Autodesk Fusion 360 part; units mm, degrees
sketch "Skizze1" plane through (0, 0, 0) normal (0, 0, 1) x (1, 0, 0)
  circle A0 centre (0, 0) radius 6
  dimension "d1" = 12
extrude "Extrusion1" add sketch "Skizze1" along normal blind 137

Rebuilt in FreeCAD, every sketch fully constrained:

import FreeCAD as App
import Part
import Sketcher
from FreeCAD import Vector

doc = App.newDocument("Part")
body = doc.addObject("PartDesign::Body", "Body")

# Sketch on XY plane
sketch1 = body.newObject("Sketcher::SketchObject", "Sketch")
sketch1.AttachmentSupport = (doc.getObject("XY_Plane"), [""])
sketch1.MapMode = "FlatFace"
sketch1.addGeometry(Part.Circle(Vector(0, 0, 0), Vector(0, 0, 1), 6), False)
sketch1.addConstraint([
    Sketcher.Constraint("Coincident", 0, 3, -1, 1),
    Sketcher.Constraint("Diameter", 0, 12.0),
])
pad1 = body.newObject("PartDesign::Pad", "Pad")
pad1.Profile = sketch1
pad1.Length = 137

doc.recompute()
